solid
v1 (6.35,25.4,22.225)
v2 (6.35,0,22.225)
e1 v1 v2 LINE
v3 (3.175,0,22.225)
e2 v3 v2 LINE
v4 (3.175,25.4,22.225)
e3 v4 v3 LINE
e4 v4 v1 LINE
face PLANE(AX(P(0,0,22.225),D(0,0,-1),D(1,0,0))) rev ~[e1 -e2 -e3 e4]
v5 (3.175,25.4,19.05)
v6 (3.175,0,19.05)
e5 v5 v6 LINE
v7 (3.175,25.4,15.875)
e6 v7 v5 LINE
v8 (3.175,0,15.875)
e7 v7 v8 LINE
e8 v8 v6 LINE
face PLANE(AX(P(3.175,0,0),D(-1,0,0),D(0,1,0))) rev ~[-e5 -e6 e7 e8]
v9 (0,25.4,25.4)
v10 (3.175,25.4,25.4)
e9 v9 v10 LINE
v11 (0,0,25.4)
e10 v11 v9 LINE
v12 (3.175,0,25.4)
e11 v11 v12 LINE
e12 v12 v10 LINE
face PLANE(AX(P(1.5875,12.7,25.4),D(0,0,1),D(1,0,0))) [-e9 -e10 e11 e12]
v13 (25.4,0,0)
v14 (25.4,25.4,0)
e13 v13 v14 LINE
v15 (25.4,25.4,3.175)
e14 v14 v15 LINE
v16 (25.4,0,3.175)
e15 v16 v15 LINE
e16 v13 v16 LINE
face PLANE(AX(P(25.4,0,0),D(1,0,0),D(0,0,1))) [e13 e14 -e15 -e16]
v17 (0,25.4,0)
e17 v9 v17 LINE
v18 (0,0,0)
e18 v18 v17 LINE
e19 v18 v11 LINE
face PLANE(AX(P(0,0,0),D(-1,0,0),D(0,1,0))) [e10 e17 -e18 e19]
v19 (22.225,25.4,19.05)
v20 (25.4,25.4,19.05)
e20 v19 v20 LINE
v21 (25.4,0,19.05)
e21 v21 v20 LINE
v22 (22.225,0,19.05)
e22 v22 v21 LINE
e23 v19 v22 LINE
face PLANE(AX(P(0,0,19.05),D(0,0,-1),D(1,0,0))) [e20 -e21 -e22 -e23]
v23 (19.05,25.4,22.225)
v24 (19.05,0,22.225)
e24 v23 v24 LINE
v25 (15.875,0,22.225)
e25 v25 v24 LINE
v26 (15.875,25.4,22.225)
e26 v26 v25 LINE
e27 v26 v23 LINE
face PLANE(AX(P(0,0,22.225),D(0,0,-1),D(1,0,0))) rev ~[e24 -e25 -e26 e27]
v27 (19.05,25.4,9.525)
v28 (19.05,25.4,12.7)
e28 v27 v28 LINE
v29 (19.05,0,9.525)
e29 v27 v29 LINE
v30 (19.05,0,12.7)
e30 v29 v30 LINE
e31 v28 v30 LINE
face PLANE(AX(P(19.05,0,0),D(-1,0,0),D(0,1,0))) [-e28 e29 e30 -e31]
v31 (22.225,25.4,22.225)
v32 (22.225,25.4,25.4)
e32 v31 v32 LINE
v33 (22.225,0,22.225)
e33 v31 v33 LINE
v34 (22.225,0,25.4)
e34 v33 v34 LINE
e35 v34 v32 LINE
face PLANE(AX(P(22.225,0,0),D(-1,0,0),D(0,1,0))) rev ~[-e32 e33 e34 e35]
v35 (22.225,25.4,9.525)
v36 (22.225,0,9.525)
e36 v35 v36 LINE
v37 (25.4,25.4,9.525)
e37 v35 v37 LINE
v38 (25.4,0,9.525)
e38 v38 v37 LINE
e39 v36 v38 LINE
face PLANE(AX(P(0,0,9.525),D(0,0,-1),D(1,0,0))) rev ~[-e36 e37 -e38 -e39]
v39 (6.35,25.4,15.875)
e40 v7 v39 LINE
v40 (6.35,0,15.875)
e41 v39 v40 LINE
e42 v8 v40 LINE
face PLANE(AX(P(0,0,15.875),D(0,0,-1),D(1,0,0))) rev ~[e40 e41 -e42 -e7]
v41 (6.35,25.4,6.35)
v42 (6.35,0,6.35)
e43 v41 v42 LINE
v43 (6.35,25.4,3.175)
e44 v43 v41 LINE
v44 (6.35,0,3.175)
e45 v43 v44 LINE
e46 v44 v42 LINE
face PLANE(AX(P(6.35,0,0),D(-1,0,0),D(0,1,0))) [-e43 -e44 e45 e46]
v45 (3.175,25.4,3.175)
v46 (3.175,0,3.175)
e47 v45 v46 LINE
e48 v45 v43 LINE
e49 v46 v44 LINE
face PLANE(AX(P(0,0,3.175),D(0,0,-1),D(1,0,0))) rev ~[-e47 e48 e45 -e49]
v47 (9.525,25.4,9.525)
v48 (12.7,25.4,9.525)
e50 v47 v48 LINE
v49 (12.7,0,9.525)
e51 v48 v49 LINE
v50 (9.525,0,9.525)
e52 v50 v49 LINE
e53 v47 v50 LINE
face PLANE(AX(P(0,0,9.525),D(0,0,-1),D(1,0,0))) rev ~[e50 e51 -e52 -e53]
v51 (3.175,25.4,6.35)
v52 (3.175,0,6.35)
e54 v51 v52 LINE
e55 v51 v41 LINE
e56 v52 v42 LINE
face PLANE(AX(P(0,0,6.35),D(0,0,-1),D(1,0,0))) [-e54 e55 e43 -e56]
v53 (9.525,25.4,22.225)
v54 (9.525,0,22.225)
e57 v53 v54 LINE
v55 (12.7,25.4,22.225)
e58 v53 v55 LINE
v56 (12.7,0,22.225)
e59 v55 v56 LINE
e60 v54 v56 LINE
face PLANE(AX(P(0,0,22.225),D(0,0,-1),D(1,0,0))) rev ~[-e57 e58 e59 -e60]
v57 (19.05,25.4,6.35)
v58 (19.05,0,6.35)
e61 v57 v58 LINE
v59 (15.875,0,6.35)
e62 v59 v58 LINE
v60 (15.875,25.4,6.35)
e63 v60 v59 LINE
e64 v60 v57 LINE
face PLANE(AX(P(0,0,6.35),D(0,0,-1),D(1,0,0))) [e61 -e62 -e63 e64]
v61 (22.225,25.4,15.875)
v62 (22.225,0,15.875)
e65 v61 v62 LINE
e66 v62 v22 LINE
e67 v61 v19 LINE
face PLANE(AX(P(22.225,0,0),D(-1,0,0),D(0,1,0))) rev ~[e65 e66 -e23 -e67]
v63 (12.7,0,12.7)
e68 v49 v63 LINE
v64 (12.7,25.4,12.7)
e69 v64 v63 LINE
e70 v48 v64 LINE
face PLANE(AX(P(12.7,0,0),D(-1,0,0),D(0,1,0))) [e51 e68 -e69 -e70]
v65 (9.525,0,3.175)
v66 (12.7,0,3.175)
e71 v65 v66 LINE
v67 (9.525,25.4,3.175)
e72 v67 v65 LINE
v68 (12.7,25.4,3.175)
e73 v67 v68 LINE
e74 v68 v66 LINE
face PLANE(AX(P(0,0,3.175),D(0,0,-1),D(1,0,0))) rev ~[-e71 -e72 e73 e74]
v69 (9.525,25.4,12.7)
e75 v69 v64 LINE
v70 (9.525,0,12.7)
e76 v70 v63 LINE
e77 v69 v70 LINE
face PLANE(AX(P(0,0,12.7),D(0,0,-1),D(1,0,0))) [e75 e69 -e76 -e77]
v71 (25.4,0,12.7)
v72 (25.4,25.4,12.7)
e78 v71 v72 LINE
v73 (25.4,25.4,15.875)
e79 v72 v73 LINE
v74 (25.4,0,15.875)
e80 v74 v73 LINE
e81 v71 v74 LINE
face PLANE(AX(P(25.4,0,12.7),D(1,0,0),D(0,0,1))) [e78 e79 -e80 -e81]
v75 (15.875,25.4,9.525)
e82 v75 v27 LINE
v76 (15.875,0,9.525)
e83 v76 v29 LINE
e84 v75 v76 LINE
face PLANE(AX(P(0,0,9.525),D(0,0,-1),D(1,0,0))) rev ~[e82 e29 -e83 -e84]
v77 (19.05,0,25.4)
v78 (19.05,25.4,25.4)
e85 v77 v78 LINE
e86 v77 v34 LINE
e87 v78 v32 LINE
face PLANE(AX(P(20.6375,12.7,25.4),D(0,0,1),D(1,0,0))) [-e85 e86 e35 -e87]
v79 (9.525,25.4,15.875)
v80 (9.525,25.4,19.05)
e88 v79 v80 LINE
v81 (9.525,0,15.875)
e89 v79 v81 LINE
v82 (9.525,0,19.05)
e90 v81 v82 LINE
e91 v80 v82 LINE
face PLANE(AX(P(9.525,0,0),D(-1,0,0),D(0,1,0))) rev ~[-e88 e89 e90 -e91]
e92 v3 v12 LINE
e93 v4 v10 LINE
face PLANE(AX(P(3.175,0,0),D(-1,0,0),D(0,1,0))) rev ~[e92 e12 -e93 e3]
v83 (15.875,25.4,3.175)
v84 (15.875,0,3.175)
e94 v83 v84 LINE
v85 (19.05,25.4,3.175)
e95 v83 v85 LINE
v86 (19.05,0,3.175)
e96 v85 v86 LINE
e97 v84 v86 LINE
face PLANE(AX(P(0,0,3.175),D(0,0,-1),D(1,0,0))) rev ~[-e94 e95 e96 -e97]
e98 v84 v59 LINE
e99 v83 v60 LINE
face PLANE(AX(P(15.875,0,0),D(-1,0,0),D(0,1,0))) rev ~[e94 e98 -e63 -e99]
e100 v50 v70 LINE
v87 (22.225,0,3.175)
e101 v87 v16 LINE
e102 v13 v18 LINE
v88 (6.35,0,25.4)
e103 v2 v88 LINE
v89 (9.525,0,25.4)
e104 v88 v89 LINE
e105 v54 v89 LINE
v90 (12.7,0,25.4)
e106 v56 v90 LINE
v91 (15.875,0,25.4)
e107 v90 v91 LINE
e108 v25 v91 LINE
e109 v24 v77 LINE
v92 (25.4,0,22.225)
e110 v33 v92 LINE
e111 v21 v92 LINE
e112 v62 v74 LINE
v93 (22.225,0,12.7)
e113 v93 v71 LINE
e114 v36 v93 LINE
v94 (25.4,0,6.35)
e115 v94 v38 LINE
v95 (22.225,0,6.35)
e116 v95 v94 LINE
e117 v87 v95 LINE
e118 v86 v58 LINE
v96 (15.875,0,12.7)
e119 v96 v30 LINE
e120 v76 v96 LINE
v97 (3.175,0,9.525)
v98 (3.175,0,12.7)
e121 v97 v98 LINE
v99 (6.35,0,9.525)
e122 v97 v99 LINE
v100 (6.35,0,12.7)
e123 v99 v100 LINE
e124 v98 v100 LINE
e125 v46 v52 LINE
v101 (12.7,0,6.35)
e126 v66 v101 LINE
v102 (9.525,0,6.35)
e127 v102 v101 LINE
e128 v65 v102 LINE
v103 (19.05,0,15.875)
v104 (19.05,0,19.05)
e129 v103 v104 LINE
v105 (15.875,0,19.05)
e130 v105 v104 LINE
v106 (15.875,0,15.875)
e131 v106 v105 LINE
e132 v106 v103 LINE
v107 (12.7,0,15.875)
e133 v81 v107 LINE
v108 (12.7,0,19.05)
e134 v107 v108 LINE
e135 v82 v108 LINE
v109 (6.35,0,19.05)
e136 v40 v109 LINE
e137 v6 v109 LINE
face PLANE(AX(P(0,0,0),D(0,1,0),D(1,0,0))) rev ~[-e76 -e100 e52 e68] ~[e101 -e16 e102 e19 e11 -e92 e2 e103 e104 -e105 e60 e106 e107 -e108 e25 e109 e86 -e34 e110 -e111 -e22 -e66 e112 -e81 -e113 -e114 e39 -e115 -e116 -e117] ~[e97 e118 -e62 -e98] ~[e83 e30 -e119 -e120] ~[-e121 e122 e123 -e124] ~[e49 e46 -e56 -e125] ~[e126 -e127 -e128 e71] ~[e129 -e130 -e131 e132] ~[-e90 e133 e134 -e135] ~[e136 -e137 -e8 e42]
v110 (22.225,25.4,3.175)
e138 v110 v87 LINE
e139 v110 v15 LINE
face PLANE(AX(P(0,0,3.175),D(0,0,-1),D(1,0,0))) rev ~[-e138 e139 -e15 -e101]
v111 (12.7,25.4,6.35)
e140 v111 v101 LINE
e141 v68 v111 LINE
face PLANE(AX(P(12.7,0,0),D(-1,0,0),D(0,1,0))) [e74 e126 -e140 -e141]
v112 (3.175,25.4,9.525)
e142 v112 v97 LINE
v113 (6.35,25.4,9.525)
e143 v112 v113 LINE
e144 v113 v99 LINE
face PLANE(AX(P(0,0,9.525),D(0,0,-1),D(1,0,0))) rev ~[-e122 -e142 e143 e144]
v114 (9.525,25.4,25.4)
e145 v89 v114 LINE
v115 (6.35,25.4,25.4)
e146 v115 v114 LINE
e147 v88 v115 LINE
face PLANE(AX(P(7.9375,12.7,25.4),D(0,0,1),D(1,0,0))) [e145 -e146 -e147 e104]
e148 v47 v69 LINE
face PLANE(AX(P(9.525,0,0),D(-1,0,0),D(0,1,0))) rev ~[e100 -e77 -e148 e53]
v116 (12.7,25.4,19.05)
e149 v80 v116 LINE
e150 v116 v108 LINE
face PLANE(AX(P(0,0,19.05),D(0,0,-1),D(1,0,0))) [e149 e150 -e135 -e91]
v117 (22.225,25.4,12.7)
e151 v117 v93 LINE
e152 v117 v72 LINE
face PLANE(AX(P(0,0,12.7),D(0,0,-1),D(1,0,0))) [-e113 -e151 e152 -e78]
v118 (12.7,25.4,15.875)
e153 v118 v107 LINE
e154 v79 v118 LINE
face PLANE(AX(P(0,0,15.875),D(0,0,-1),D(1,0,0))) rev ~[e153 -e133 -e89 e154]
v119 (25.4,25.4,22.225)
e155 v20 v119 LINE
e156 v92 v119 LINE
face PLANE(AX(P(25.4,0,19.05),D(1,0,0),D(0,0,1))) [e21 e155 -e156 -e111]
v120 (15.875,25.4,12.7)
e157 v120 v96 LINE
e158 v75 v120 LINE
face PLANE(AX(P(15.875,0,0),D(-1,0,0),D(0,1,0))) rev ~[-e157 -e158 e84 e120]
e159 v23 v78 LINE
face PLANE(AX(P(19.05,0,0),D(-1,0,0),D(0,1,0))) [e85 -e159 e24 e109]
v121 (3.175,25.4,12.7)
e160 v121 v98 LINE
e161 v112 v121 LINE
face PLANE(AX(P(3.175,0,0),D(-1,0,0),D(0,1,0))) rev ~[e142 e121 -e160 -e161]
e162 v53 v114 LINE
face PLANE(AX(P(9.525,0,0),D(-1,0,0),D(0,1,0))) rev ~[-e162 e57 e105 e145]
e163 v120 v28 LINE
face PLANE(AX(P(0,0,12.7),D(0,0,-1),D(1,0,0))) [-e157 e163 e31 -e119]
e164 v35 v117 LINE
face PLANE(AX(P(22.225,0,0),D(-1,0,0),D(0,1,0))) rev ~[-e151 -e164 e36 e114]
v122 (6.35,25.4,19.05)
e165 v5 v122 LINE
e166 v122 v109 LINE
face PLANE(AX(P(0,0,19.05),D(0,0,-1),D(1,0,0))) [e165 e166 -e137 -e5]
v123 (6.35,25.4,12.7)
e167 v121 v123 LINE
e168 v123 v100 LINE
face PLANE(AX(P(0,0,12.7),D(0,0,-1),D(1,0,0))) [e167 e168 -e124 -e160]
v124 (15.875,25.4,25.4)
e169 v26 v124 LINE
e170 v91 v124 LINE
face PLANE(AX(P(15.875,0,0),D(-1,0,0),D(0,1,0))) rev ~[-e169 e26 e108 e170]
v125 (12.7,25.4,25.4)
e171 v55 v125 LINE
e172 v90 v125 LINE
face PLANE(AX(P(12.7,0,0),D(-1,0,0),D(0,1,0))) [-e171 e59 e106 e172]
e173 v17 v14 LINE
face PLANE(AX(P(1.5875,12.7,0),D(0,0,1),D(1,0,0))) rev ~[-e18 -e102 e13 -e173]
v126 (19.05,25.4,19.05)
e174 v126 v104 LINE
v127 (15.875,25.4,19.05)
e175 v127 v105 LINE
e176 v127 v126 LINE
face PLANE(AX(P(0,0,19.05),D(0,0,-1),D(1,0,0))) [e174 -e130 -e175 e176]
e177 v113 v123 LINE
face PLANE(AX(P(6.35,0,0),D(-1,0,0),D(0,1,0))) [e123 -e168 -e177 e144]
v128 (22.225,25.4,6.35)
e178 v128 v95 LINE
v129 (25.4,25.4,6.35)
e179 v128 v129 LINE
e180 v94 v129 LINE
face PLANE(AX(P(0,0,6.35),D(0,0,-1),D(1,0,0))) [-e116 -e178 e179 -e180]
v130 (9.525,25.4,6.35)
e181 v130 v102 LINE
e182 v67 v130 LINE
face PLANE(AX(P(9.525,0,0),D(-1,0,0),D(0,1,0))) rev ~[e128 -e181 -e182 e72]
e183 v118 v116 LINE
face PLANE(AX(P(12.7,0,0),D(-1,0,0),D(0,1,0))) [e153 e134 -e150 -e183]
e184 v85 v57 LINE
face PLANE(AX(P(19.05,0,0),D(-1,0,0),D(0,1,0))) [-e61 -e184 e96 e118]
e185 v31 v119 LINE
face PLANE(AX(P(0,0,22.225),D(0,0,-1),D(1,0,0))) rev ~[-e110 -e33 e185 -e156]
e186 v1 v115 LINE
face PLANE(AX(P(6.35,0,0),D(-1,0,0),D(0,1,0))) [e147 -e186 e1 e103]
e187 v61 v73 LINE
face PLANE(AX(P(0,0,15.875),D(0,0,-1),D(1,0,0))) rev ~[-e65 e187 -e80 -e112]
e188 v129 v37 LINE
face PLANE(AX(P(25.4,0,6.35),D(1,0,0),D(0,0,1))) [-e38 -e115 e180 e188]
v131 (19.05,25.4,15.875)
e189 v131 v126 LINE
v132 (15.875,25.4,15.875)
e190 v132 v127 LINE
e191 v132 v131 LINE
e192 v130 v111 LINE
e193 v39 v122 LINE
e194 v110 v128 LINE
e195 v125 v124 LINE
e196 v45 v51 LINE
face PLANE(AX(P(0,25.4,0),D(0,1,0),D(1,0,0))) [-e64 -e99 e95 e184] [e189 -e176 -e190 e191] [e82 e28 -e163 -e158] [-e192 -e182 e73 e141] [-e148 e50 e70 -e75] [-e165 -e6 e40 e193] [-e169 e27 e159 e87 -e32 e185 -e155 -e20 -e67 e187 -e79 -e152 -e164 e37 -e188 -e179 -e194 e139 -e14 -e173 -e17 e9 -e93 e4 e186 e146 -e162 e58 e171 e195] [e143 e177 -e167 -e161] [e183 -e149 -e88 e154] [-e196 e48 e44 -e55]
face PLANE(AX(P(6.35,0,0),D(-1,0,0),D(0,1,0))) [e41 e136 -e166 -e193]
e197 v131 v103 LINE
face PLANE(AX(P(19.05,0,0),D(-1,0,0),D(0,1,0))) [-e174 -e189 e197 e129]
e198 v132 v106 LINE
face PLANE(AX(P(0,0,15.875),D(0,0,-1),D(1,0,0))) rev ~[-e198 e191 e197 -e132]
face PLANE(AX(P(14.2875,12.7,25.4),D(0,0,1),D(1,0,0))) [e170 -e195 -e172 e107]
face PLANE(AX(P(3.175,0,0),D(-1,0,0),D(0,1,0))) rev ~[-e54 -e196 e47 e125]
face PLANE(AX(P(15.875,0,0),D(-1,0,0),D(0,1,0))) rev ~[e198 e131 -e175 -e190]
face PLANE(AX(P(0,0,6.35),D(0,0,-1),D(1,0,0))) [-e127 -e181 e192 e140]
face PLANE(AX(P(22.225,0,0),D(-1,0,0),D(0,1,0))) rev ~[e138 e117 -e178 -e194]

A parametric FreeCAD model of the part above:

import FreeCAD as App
import Part
import Sketcher
Q = App.Units.Quantity

doc = App.newDocument("Part")
body = doc.addObject("PartDesign::Body", "Body")
body.AllowCompound = True

# Sketch on XY plane
sketch1 = body.newObject("Sketcher::SketchObject", "Sketch")
sketch1.AttachmentSupport = (doc.getObject("XY_Plane"), [""])
sketch1.MapMode = "FlatFace"
sketch1.addGeometry([
    Part.LineSegment(App.Vector(0, 25.4, 0), App.Vector(0, 0, 0)),  # 0
    Part.LineSegment(App.Vector(0, 0, 0), App.Vector(3.175, 0, 0)),  # 1
    Part.LineSegment(App.Vector(3.175, 0, 0), App.Vector(3.175, 25.4, 0)),  # 2
    Part.LineSegment(App.Vector(3.175, 25.4, 0), App.Vector(0, 25.4, 0)),  # 3
    Part.LineSegment(App.Vector(6.35, 25.4, 0), App.Vector(6.35, 0, 0)),  # 4
    Part.LineSegment(App.Vector(6.35, 0, 0), App.Vector(9.525, 0, 0)),  # 5
    Part.LineSegment(App.Vector(9.525, 0, 0), App.Vector(9.525, 25.4, 0)),  # 6
    Part.LineSegment(App.Vector(9.525, 25.4, 0), App.Vector(6.35, 25.4, 0)),  # 7
    Part.LineSegment(App.Vector(12.7, 25.4, 0), App.Vector(12.7, 0, 0)),  # 8
    Part.LineSegment(App.Vector(12.7, 0, 0), App.Vector(15.875, 0, 0)),  # 9
    Part.LineSegment(App.Vector(15.875, 0, 0), App.Vector(15.875, 25.4, 0)),  # 10
    Part.LineSegment(App.Vector(15.875, 25.4, 0), App.Vector(12.7, 25.4, 0)),  # 11
    Part.LineSegment(App.Vector(19.05, 25.4, 0), App.Vector(19.05, 0, 0)),  # 12
    Part.LineSegment(App.Vector(19.05, 0, 0), App.Vector(22.225, 0, 0)),  # 13
    Part.LineSegment(App.Vector(22.225, 0, 0), App.Vector(22.225, 25.4, 0)),  # 14
    Part.LineSegment(App.Vector(22.225, 25.4, 0), App.Vector(19.05, 25.4, 0)),  # 15
], False)
sketch1.addConstraint([
    Sketcher.Constraint("Coincident", 0, 2, 1, 1),
    Sketcher.Constraint("Coincident", 1, 2, 2, 1),
    Sketcher.Constraint("Coincident", 2, 2, 3, 1),
    Sketcher.Constraint("Coincident", 3, 2, 0, 1),
    Sketcher.Constraint("Coincident", 4, 2, 5, 1),
    Sketcher.Constraint("Coincident", 5, 2, 6, 1),
    Sketcher.Constraint("Coincident", 6, 2, 7, 1),
    Sketcher.Constraint("Coincident", 7, 2, 4, 1),
    Sketcher.Constraint("Coincident", 8, 2, 9, 1),
    Sketcher.Constraint("Coincident", 9, 2, 10, 1),
    Sketcher.Constraint("Coincident", 10, 2, 11, 1),
    Sketcher.Constraint("Coincident", 11, 2, 8, 1),
    Sketcher.Constraint("Coincident", 12, 2, 13, 1),
    Sketcher.Constraint("Coincident", 13, 2, 14, 1),
    Sketcher.Constraint("Coincident", 14, 2, 15, 1),
    Sketcher.Constraint("Coincident", 15, 2, 12, 1),
    Sketcher.Constraint("Vertical", 0),
    Sketcher.Constraint("Horizontal", 1),
    Sketcher.Constraint("Vertical", 2),
    Sketcher.Constraint("Horizontal", 3),
    Sketcher.Constraint("Vertical", 4),
    Sketcher.Constraint("Horizontal", 5),
    Sketcher.Constraint("Vertical", 6),
    Sketcher.Constraint("Horizontal", 7),
    Sketcher.Constraint("Vertical", 8),
    Sketcher.Constraint("Horizontal", 9),
    Sketcher.Constraint("Vertical", 10),
    Sketcher.Constraint("Horizontal", 11),
    Sketcher.Constraint("Vertical", 12),
    Sketcher.Constraint("Horizontal", 13),
    Sketcher.Constraint("Vertical", 14),
    Sketcher.Constraint("Horizontal", 15),
    Sketcher.Constraint("Coincident", 0, 2, -1, 1),
    Sketcher.Constraint("PointOnObject", 4, 2, -1),
    Sketcher.Constraint("PointOnObject", 8, 2, -1),
    Sketcher.Constraint("PointOnObject", 12, 2, -1),
    Sketcher.Constraint("Horizontal", 3, 2, 6, 2),
    Sketcher.Constraint("Horizontal", 7, 2, 10, 2),
    Sketcher.Constraint("Horizontal", 11, 2, 14, 2),
    Sketcher.Constraint("Equal", 3, 5),
    Sketcher.Constraint("Equal", 7, 9),
    Sketcher.Constraint("Equal", 11, 13),
    Sketcher.Constraint("DistanceY", 0, 2, 0, 1, Q("1 in")),
    Sketcher.Constraint("DistanceX", -1, 1, 8, 2, Q("0.5 in")),
    Sketcher.Constraint("DistanceX", 4, 2, 12, 2, Q("0.5 in")),
    Sketcher.Constraint("DistanceX", 1, 1, 1, 2, Q("0.125 in")),
    Sketcher.Constraint("DistanceX", -1, 1, 4, 2, Q("0.25 in")),
])
pad1 = body.newObject("PartDesign::Pad", "Pad")
pad1.Profile = sketch1
pad1.Length = Q("1 in")

# Sketch on XZ plane
sketch2 = body.newObject("Sketcher::SketchObject", "Sketch001")
sketch2.AttachmentSupport = (doc.getObject("XZ_Plane"), [""])
sketch2.MapMode = "FlatFace"
sketch2.addGeometry([
    Part.LineSegment(App.Vector(0, 3.175, 0), App.Vector(0, 0, 0)),  # 0
    Part.LineSegment(App.Vector(0, 0, 0), App.Vector(25.4, 0, 0)),  # 1
    Part.LineSegment(App.Vector(25.4, 0, 0), App.Vector(25.4, 3.175, 0)),  # 2
    Part.LineSegment(App.Vector(25.4, 3.175, 0), App.Vector(0, 3.175, 0)),  # 3
    Part.LineSegment(App.Vector(0, 9.525, 0), App.Vector(0, 6.35, 0)),  # 4
    Part.LineSegment(App.Vector(0, 6.35, 0), App.Vector(25.4, 6.35, 0)),  # 5
    Part.LineSegment(App.Vector(25.4, 6.35, 0), App.Vector(25.4, 9.525, 0)),  # 6
    Part.LineSegment(App.Vector(25.4, 9.525, 0), App.Vector(0, 9.525, 0)),  # 7
    Part.LineSegment(App.Vector(0, 15.875, 0), App.Vector(0, 12.7, 0)),  # 8
    Part.LineSegment(App.Vector(0, 12.7, 0), App.Vector(25.4, 12.7, 0)),  # 9
    Part.LineSegment(App.Vector(25.4, 12.7, 0), App.Vector(25.4, 15.875, 0)),  # 10
    Part.LineSegment(App.Vector(25.4, 15.875, 0), App.Vector(0, 15.875, 0)),  # 11
    Part.LineSegment(App.Vector(0, 22.225, 0), App.Vector(0, 19.05, 0)),  # 12
    Part.LineSegment(App.Vector(0, 19.05, 0), App.Vector(25.4, 19.05, 0)),  # 13
    Part.LineSegment(App.Vector(25.4, 19.05, 0), App.Vector(25.4, 22.225, 0)),  # 14
    Part.LineSegment(App.Vector(25.4, 22.225, 0), App.Vector(0, 22.225, 0)),  # 15
], False)
sketch2.addConstraint([
    Sketcher.Constraint("Coincident", 0, 2, 1, 1),
    Sketcher.Constraint("Coincident", 1, 2, 2, 1),
    Sketcher.Constraint("Coincident", 2, 2, 3, 1),
    Sketcher.Constraint("Coincident", 3, 2, 0, 1),
    Sketcher.Constraint("Coincident", 4, 2, 5, 1),
    Sketcher.Constraint("Coincident", 5, 2, 6, 1),
    Sketcher.Constraint("Coincident", 6, 2, 7, 1),
    Sketcher.Constraint("Coincident", 7, 2, 4, 1),
    Sketcher.Constraint("Coincident", 8, 2, 9, 1),
    Sketcher.Constraint("Coincident", 9, 2, 10, 1),
    Sketcher.Constraint("Coincident", 10, 2, 11, 1),
    Sketcher.Constraint("Coincident", 11, 2, 8, 1),
    Sketcher.Constraint("Coincident", 12, 2, 13, 1),
    Sketcher.Constraint("Coincident", 13, 2, 14, 1),
    Sketcher.Constraint("Coincident", 14, 2, 15, 1),
    Sketcher.Constraint("Coincident", 15, 2, 12, 1),
    Sketcher.Constraint("Vertical", 0),
    Sketcher.Constraint("Horizontal", 1),
    Sketcher.Constraint("Vertical", 2),
    Sketcher.Constraint("Horizontal", 3),
    Sketcher.Constraint("Vertical", 4),
    Sketcher.Constraint("Horizontal", 5),
    Sketcher.Constraint("Vertical", 6),
    Sketcher.Constraint("Horizontal", 7),
    Sketcher.Constraint("Vertical", 8),
    Sketcher.Constraint("Horizontal", 9),
    Sketcher.Constraint("Vertical", 10),
    Sketcher.Constraint("Horizontal", 11),
    Sketcher.Constraint("Vertical", 12),
    Sketcher.Constraint("Horizontal", 13),
    Sketcher.Constraint("Vertical", 14),
    Sketcher.Constraint("Horizontal", 15),
    Sketcher.Constraint("Coincident", 0, 2, -1, 1),
    Sketcher.Constraint("PointOnObject", 4, 2, -2),
    Sketcher.Constraint("PointOnObject", 8, 2, -2),
    Sketcher.Constraint("PointOnObject", 12, 2, -2),
    Sketcher.Constraint("Vertical", 2, 2, 5, 2),
    Sketcher.Constraint("Vertical", 6, 2, 9, 2),
    Sketcher.Constraint("Vertical", 10, 2, 13, 2),
    Sketcher.Constraint("Equal", 2, 4),
    Sketcher.Constraint("Equal", 6, 8),
    Sketcher.Constraint("Equal", 10, 12),
    Sketcher.Constraint("DistanceX", 1, 1, 1, 2, Q("1 in")),
    Sketcher.Constraint("DistanceY", -1, 1, 8, 2, Q("0.5 in")),
    Sketcher.Constraint("DistanceY", 4, 2, 12, 2, Q("0.5 in")),
    Sketcher.Constraint("DistanceY", 0, 2, 0, 1, Q("0.125 in")),
    Sketcher.Constraint("DistanceY", -1, 1, 4, 2, Q("0.25 in")),
])
pad2 = body.newObject("PartDesign::Pad", "Pad001")
pad2.Profile = sketch2
pad2.Length = Q("1 in")
pad2.Reversed = True

doc.recompute()
